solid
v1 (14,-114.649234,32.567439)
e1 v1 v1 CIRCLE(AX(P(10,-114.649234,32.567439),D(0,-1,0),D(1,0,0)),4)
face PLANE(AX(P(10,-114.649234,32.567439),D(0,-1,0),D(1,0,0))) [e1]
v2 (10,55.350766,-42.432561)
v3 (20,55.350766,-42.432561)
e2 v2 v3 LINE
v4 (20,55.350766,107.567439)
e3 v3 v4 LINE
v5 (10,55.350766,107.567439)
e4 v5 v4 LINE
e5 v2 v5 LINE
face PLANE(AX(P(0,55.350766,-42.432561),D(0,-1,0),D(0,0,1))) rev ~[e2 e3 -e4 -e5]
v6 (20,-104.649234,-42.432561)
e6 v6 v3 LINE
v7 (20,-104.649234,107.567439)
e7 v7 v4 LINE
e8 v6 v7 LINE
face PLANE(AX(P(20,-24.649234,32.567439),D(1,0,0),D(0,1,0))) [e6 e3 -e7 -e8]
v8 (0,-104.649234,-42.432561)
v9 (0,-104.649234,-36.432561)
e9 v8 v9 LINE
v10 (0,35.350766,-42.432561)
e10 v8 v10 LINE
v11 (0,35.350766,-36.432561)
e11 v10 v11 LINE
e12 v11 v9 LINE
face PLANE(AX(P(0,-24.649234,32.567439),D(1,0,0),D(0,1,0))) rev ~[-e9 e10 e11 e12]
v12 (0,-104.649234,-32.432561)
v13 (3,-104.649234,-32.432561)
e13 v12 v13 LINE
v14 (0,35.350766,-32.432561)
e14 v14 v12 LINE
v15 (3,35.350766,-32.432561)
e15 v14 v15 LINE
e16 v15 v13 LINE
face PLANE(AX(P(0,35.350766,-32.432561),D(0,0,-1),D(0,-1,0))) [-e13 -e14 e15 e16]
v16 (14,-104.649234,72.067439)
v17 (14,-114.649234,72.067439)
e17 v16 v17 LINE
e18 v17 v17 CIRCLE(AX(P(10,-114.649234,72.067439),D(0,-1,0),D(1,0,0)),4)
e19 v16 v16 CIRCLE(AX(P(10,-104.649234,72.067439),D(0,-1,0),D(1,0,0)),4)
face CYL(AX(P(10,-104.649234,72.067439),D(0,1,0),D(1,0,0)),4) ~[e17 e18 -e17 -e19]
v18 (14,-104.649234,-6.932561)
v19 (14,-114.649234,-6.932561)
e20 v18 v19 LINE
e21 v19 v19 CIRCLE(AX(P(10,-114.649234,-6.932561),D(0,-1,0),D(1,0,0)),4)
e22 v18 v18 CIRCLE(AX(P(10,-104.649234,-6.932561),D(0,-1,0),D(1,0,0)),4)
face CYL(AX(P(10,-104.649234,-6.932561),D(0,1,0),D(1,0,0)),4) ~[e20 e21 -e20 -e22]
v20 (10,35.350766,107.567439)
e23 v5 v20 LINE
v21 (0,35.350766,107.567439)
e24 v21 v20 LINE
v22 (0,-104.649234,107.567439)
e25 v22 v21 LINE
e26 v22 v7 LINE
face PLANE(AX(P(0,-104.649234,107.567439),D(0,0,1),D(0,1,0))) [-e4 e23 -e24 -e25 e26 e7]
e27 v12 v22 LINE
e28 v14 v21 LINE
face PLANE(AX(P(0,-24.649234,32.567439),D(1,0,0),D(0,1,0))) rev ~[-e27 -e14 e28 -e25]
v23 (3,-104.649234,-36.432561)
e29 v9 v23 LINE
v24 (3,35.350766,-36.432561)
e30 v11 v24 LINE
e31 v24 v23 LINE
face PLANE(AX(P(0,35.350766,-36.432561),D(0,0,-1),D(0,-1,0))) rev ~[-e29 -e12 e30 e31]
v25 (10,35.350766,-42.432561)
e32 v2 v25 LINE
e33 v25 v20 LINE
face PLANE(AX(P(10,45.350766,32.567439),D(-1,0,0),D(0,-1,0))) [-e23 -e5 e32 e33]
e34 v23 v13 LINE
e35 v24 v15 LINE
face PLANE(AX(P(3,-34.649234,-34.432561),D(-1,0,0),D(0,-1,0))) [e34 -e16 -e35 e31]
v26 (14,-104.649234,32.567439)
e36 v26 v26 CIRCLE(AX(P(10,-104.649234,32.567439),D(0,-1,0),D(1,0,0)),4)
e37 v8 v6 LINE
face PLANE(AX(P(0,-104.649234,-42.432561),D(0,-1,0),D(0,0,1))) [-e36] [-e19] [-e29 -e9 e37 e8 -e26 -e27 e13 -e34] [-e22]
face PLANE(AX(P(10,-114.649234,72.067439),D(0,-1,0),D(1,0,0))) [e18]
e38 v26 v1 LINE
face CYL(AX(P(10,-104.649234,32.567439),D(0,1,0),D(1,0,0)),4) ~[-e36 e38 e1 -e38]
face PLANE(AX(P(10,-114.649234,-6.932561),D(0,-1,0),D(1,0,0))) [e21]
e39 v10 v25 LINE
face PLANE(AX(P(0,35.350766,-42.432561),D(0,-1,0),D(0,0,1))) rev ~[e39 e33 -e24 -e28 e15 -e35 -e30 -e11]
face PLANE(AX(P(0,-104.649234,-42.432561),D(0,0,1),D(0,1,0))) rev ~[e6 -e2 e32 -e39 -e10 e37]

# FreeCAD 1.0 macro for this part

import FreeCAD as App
import Part
import Sketcher
from FreeCAD import Vector
Q = App.Units.Quantity

doc = App.newDocument("Part")
body = doc.addObject("PartDesign::Body", "Body")

sketch1 = body.newObject("Sketcher::SketchObject", "Sketch")
sketch1.AttachmentSupport = (doc.getObject("YZ_Plane"), [""])
sketch1.MapMode = "FlatFace"
sketch1.addGeometry([
    Part.LineSegment(Vector(-104.649234, 107.567439, 0), Vector(-104.649234, -42.432561, 0)),
    Part.LineSegment(Vector(-104.649234, -42.432561, 0), Vector(55.350766, -42.432561, 0)),
    Part.LineSegment(Vector(55.350766, -42.432561, 0), Vector(55.350766, 107.567439, 0)),
    Part.LineSegment(Vector(55.350766, 107.567439, 0), Vector(-104.649234, 107.567439, 0)),
], False)
sketch1.addConstraint([
    Sketcher.Constraint("Coincident", 0, 2, 1, 1),
    Sketcher.Constraint("Coincident", 1, 2, 2, 1),
    Sketcher.Constraint("Coincident", 2, 2, 3, 1),
    Sketcher.Constraint("Coincident", 3, 2, 0, 1),
    Sketcher.Constraint("Vertical", 0),
    Sketcher.Constraint("Horizontal", 1),
    Sketcher.Constraint("Vertical", 2),
    Sketcher.Constraint("Horizontal", 3),
    Sketcher.Constraint("DistanceX", 1, 1, 1, 2, Q("160 mm")),
    Sketcher.Constraint("DistanceY", 0, 2, 0, 1, Q("150 mm")),
    Sketcher.Constraint("DistanceY", 0, 2, -1, 1, Q("42.432561 mm")),
    Sketcher.Constraint("DistanceX", 0, 2, -1, 1, Q("104.649234 mm")),
])
pad1 = body.newObject("PartDesign::Pad", "Pad")
pad1.Profile = sketch1
pad1.Length = 20

sketch2 = body.newObject("Sketcher::SketchObject", "Sketch001")
sketch2.AttachmentSupport = (doc.getObject("YZ_Plane"), [""])
sketch2.MapMode = "FlatFace"
sketch2.addGeometry([
    Part.LineSegment(Vector(55.350766, 107.567439, 0), Vector(55.350766, -42.432561, 0)),
    Part.LineSegment(Vector(55.350766, -42.432561, 0), Vector(35.350766, -42.432561, 0)),
    Part.LineSegment(Vector(35.350766, -42.432561, 0), Vector(35.350766, 107.567439, 0)),
    Part.LineSegment(Vector(35.350766, 107.567439, 0), Vector(55.350766, 107.567439, 0)),
], False)
sketch2.addConstraint([
    Sketcher.Constraint("Coincident", 0, 2, 1, 1),
    Sketcher.Constraint("Coincident", 1, 2, 2, 1),
    Sketcher.Constraint("Coincident", 2, 2, 3, 1),
    Sketcher.Constraint("Coincident", 3, 2, 0, 1),
    Sketcher.Constraint("Vertical", 0),
    Sketcher.Constraint("Horizontal", 1),
    Sketcher.Constraint("Vertical", 2),
    Sketcher.Constraint("Horizontal", 3),
    Sketcher.Constraint("DistanceX", 1, 2, 1, 1, Q("20 mm")),
    Sketcher.Constraint("DistanceY", 0, 2, 0, 1, Q("150 mm")),
    Sketcher.Constraint("DistanceY", 0, 2, -1, 1, Q("42.432561 mm")),
    Sketcher.Constraint("DistanceX", -1, 1, 0, 2, Q("55.350766 mm")),
])
pocket1 = body.newObject("PartDesign::Pocket", "Pocket")
pocket1.Profile = sketch2
pocket1.Length = 10
pocket1.Reversed = True

sketch3 = body.newObject("Sketcher::SketchObject", "Sketch002")
sketch3.AttachmentSupport = (doc.getObject("YZ_Plane"), [""])
sketch3.MapMode = "FlatFace"
sketch3.addGeometry([
    Part.LineSegment(Vector(35.350766, -32.432561, 0), Vector(35.350766, -36.432561, 0)),
    Part.LineSegment(Vector(35.350766, -36.432561, 0), Vector(-104.649234, -36.432561, 0)),
    Part.LineSegment(Vector(-104.649234, -36.432561, 0), Vector(-104.649234, -32.432561, 0)),
    Part.LineSegment(Vector(-104.649234, -32.432561, 0), Vector(35.350766, -32.432561, 0)),
], False)
sketch3.addConstraint([
    Sketcher.Constraint("Coincident", 0, 2, 1, 1),
    Sketcher.Constraint("Coincident", 1, 2, 2, 1),
    Sketcher.Constraint("Coincident", 2, 2, 3, 1),
    Sketcher.Constraint("Coincident", 3, 2, 0, 1),
    Sketcher.Constraint("Vertical", 0),
    Sketcher.Constraint("Horizontal", 1),
    Sketcher.Constraint("Vertical", 2),
    Sketcher.Constraint("Horizontal", 3),
    Sketcher.Constraint("DistanceX", 1, 2, 1, 1, Q("140 mm")),
    Sketcher.Constraint("DistanceY", 0, 2, 0, 1, Q("4 mm")),
    Sketcher.Constraint("DistanceY", 0, 2, -1, 1, Q("36.432561 mm")),
    Sketcher.Constraint("DistanceX", -1, 1, 0, 2, Q("35.350766 mm")),
])
pocket2 = body.newObject("PartDesign::Pocket", "Pocket001")
pocket2.Profile = sketch3
pocket2.Length = 3
pocket2.Reversed = True

sketch4 = body.newObject("Sketcher::SketchObject", "Sketch003")
sketch4.AttachmentSupport = (doc.getObject("XZ_Plane"), [""])
sketch4.MapMode = "FlatFace"
sketch4.AttachmentOffset = App.Placement(Vector(0, 0, 104.649234), App.Rotation())
sketch4.addGeometry([
    Part.Circle(Vector(10, 72.067439, 0), Vector(0, 0, 1), 4),
    Part.Circle(Vector(10, 32.567439, 0), Vector(0, 0, 1), 4),
    Part.Circle(Vector(10, -6.932561, 0), Vector(0, 0, 1), 4),
], False)
sketch4.addConstraint([
    Sketcher.Constraint("Equal", 0, 1),
    Sketcher.Constraint("Equal", 1, 2),
    Sketcher.Constraint("Vertical", 0, 3, 1, 3),
    Sketcher.Constraint("Vertical", 1, 3, 2, 3),
    Sketcher.Constraint("Diameter", 0, Q("8 mm")),
    Sketcher.Constraint("DistanceX", -1, 1, 0, 3, Q("10 mm")),
    Sketcher.Constraint("DistanceY", 2, 3, 0, 3, Q("79 mm")),
    Sketcher.Constraint("DistanceY", 1, 3, 0, 3, Q("39.5 mm")),
    Sketcher.Constraint("DistanceY", -1, 1, 0, 3, Q("72.067439 mm")),
])
pad2 = body.newObject("PartDesign::Pad", "Pad001")
pad2.Profile = sketch4
pad2.Length = 10

doc.recompute()
